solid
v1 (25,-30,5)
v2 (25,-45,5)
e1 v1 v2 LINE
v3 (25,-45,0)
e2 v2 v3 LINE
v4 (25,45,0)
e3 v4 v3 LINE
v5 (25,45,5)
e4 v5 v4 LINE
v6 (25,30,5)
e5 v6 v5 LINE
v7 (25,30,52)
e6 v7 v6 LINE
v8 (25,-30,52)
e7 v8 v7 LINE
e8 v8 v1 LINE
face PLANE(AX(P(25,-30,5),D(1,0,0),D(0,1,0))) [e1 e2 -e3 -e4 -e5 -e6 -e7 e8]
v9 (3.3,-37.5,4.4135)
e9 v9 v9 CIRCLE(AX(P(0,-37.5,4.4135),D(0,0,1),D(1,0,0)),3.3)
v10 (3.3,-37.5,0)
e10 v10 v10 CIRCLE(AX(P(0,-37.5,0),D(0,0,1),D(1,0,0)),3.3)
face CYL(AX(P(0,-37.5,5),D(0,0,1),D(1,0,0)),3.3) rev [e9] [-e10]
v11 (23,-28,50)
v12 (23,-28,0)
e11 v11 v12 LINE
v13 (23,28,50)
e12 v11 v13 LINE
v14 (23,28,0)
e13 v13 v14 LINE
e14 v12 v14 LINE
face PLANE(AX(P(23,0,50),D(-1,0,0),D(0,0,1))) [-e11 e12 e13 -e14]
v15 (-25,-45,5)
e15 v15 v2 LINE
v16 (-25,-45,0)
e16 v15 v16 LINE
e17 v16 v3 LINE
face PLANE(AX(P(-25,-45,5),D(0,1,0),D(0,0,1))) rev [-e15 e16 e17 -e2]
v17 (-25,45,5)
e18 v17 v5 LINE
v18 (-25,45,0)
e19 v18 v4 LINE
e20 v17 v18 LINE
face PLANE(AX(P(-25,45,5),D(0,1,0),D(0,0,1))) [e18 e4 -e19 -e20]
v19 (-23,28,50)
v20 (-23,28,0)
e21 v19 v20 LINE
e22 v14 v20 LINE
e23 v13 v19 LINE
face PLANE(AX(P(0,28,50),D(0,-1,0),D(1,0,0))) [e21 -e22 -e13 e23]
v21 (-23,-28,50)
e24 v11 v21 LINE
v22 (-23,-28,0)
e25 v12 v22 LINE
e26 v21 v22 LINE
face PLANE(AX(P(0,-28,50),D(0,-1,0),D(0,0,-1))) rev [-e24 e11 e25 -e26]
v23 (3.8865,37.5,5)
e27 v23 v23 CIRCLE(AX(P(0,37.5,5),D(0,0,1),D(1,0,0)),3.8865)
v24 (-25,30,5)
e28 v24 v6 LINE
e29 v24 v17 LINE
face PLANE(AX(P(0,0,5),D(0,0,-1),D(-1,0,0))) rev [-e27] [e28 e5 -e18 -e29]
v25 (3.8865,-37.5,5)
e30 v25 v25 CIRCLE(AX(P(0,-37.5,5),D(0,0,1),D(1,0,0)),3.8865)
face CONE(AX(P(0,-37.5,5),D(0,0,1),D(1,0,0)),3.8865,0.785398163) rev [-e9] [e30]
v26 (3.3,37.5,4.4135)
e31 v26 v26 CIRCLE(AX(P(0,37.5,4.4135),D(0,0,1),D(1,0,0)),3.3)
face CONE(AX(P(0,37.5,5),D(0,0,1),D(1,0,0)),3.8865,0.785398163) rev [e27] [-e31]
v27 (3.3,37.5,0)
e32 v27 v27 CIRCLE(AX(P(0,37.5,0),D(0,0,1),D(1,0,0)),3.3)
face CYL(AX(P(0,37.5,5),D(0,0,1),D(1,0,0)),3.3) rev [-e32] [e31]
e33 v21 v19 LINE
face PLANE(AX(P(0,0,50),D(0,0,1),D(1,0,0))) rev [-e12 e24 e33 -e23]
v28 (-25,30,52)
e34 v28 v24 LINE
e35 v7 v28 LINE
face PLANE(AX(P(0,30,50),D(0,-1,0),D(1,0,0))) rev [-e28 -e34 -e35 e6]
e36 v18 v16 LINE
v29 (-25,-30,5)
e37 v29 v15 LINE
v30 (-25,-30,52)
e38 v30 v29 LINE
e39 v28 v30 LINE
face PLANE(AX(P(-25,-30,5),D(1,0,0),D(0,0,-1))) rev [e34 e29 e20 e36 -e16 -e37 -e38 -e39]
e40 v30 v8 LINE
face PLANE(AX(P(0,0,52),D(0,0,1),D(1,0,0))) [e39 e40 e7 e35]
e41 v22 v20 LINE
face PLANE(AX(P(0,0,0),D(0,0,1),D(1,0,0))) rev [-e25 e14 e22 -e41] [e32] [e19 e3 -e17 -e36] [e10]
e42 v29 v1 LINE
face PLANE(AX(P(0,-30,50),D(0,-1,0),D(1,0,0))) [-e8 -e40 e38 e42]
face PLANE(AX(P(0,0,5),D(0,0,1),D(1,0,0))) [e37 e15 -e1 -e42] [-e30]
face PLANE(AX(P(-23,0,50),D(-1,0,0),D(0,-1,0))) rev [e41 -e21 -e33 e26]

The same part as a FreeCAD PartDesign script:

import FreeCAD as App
import Part
import Sketcher

V = App.Vector
Q = App.Units.Quantity

doc = App.newDocument("Part")
body = doc.addObject("PartDesign::Body", "Body")

# Sketch on XY plane
sketch1 = doc.addObject("Sketcher::SketchObject", "Sketch")
body.addObject(sketch1)
sketch1.AttachmentSupport = (doc.XY_Plane, [""])
sketch1.MapMode = "FlatFace"
sketch1.addGeometry([
    Part.LineSegment(V(-25, 30, 0), V(25, 30, 0)),
    Part.LineSegment(V(25, 30, 0), V(25, 45, 0)),
    Part.LineSegment(V(25, 45, 0), V(-25, 45, 0)),
    Part.LineSegment(V(-25, 45, 0), V(-25, 30, 0)),
], False)
sketch1.addConstraint([
    Sketcher.Constraint("Coincident", 0, 2, 1, 1),
    Sketcher.Constraint("Coincident", 1, 2, 2, 1),
    Sketcher.Constraint("Coincident", 2, 2, 3, 1),
    Sketcher.Constraint("Coincident", 3, 2, 0, 1),
    Sketcher.Constraint("Horizontal", 0),
    Sketcher.Constraint("Vertical", 1),
    Sketcher.Constraint("Horizontal", 2),
    Sketcher.Constraint("Vertical", 3),
    Sketcher.Constraint("DistanceX", 0, 1, 0, 2, Q("50 mm")),
    Sketcher.Constraint("DistanceY", 1, 1, 1, 2, Q("15 mm")),
    Sketcher.Constraint("DistanceX", -1, 1, 0, 2, Q("25 mm")),
    Sketcher.Constraint("DistanceY", -1, 1, 0, 2, Q("30 mm")),
])
pad1 = doc.addObject("PartDesign::Pad", "Pad")
body.addObject(pad1)
pad1.Profile = sketch1
pad1.Length = 5
body2 = doc.addObject("PartDesign::Body", "Body001")

# Sketch on XY plane
sketch2 = doc.addObject("Sketcher::SketchObject", "Sketch001")
body2.addObject(sketch2)
sketch2.AttachmentSupport = (doc.getObject("XY_Plane001"), [""])
sketch2.MapMode = "FlatFace"
sketch2.addGeometry([
    Part.LineSegment(V(-25, -45, 0), V(25, -45, 0)),
    Part.LineSegment(V(25, -45, 0), V(25, -30, 0)),
    Part.LineSegment(V(25, -30, 0), V(-25, -30, 0)),
    Part.LineSegment(V(-25, -30, 0), V(-25, -45, 0)),
], False)
sketch2.addConstraint([
    Sketcher.Constraint("Coincident", 0, 2, 1, 1),
    Sketcher.Constraint("Coincident", 1, 2, 2, 1),
    Sketcher.Constraint("Coincident", 2, 2, 3, 1),
    Sketcher.Constraint("Coincident", 3, 2, 0, 1),
    Sketcher.Constraint("Horizontal", 0),
    Sketcher.Constraint("Vertical", 1),
    Sketcher.Constraint("Horizontal", 2),
    Sketcher.Constraint("Vertical", 3),
    Sketcher.Constraint("DistanceX", 0, 1, 0, 2, Q("50 mm")),
    Sketcher.Constraint("DistanceY", 1, 1, 1, 2, Q("15 mm")),
    Sketcher.Constraint("DistanceX", -1, 1, 0, 2, Q("25 mm")),
    Sketcher.Constraint("DistanceY", 0, 2, -1, 1, Q("45 mm")),
])
pad2 = doc.addObject("PartDesign::Pad", "Pad001")
body2.addObject(pad2)
pad2.Profile = sketch2
pad2.Length = 5
body.AllowCompound = True
doc.recompute()

boolean = doc.addObject("PartDesign::Boolean", "Boolean")
body.addObject(boolean)
boolean.Type = "Fuse"
boolean.addObjects([body2])

# Sketch on XY plane
sketch3 = doc.addObject("Sketcher::SketchObject", "Sketch002")
body.addObject(sketch3)
sketch3.AttachmentSupport = (doc.XY_Plane, [""])
sketch3.MapMode = "FlatFace"
sketch3.addGeometry([
    Part.LineSegment(V(-25, -30, 0), V(25, -30, 0)),  # 0
    Part.LineSegment(V(25, -30, 0), V(25, 30, 0)),  # 1
    Part.LineSegment(V(25, 30, 0), V(-25, 30, 0)),  # 2
    Part.LineSegment(V(-25, 30, 0), V(-25, -30, 0)),  # 3
    Part.LineSegment(V(23, 28, 0), V(23, -28, 0)),  # 4
    Part.LineSegment(V(23, -28, 0), V(-23, -28, 0)),  # 5
    Part.LineSegment(V(-23, -28, 0), V(-23, 28, 0)),  # 6
    Part.LineSegment(V(-23, 28, 0), V(23, 28, 0)),  # 7
], False)
sketch3.addConstraint([
    Sketcher.Constraint("Coincident", 0, 2, 1, 1),
    Sketcher.Constraint("Coincident", 1, 2, 2, 1),
    Sketcher.Constraint("Coincident", 2, 2, 3, 1),
    Sketcher.Constraint("Coincident", 3, 2, 0, 1),
    Sketcher.Constraint("Coincident", 4, 2, 5, 1),
    Sketcher.Constraint("Coincident", 5, 2, 6, 1),
    Sketcher.Constraint("Coincident", 6, 2, 7, 1),
    Sketcher.Constraint("Coincident", 7, 2, 4, 1),
    Sketcher.Constraint("Horizontal", 0),
    Sketcher.Constraint("Vertical", 1),
    Sketcher.Constraint("Horizontal", 2),
    Sketcher.Constraint("Vertical", 3),
    Sketcher.Constraint("Vertical", 4),
    Sketcher.Constraint("Horizontal", 5),
    Sketcher.Constraint("Vertical", 6),
    Sketcher.Constraint("Horizontal", 7),
    Sketcher.Constraint("Symmetric", 0, 2, 2, 2, -1, 1),
    Sketcher.Constraint("Symmetric", 4, 2, 6, 2, -1, 1),
    Sketcher.Constraint("DistanceX", 0, 1, 0, 2, Q("50 mm")),
    Sketcher.Constraint("DistanceX", 5, 2, 5, 1, Q("46 mm")),
    Sketcher.Constraint("DistanceY", 1, 1, 1, 2, Q("60 mm")),
    Sketcher.Constraint("DistanceY", 4, 2, 4, 1, Q("56 mm")),
])
pad3 = doc.addObject("PartDesign::Pad", "Pad002")
body.addObject(pad3)
pad3.Profile = sketch3
pad3.Length = 50

# Sketch on XY plane
sketch4 = doc.addObject("Sketcher::SketchObject", "Sketch003")
body.addObject(sketch4)
sketch4.AttachmentSupport = (doc.XY_Plane, [""])
sketch4.MapMode = "FlatFace"
sketch4.AttachmentOffset = App.Placement(V(0, 0, 50), App.Rotation())
sketch4.addGeometry([
    Part.LineSegment(V(-25, 30, 0), V(-25, -30, 0)),
    Part.LineSegment(V(-25, -30, 0), V(25, -30, 0)),
    Part.LineSegment(V(25, -30, 0), V(25, 30, 0)),
    Part.LineSegment(V(25, 30, 0), V(-25, 30, 0)),
], False)
sketch4.addConstraint([
    Sketcher.Constraint("Coincident", 0, 2, 1, 1),
    Sketcher.Constraint("Coincident", 1, 2, 2, 1),
    Sketcher.Constraint("Coincident", 2, 2, 3, 1),
    Sketcher.Constraint("Coincident", 3, 2, 0, 1),
    Sketcher.Constraint("Vertical", 0),
    Sketcher.Constraint("Horizontal", 1),
    Sketcher.Constraint("Vertical", 2),
    Sketcher.Constraint("Horizontal", 3),
    Sketcher.Constraint("Symmetric", 0, 2, 2, 2, -1, 1),
    Sketcher.Constraint("DistanceX", 1, 1, 1, 2, Q("50 mm")),
    Sketcher.Constraint("DistanceY", 0, 2, 0, 1, Q("60 mm")),
])
pad4 = doc.addObject("PartDesign::Pad", "Pad003")
body.addObject(pad4)
pad4.Profile = sketch4
pad4.Length = 2

# Sketch on XY plane
sketch5 = doc.addObject("Sketcher::SketchObject", "Sketch004")
body.addObject(sketch5)
sketch5.AttachmentSupport = (doc.XY_Plane, [""])
sketch5.MapMode = "FlatFace"
sketch5.AttachmentOffset = App.Placement(V(0, 0, 5), App.Rotation())
sketch5.addGeometry([
    Part.Circle(V(0, -37.5, 0), V(0, 0, 1), 3.3),
    Part.Circle(V(0, 37.5, 0), V(0, 0, 1), 3.3),
], False)
sketch5.addConstraint([
    Sketcher.Constraint("Equal", 0, 1),
    Sketcher.Constraint("Symmetric", 0, 3, 1, 3, -1, 1),
    Sketcher.Constraint("PointOnObject", 0, 3, -2),
    Sketcher.Constraint("Diameter", 0, Q("6.6 mm")),
    Sketcher.Constraint("DistanceY", 0, 3, 1, 3, Q("75 mm")),
])
doc.recompute()
hole = doc.addObject("PartDesign::Hole", "Hole")
body.addObject(hole)
hole.Profile = sketch5
hole.ThreadType = "None"
hole.Diameter = 6.6
hole.DepthType = "ThroughAll"
hole.HoleCutType = "Countersink"
hole.HoleCutDiameter = 7.773
hole.HoleCutCountersinkAngle = 90

doc.recompute()
